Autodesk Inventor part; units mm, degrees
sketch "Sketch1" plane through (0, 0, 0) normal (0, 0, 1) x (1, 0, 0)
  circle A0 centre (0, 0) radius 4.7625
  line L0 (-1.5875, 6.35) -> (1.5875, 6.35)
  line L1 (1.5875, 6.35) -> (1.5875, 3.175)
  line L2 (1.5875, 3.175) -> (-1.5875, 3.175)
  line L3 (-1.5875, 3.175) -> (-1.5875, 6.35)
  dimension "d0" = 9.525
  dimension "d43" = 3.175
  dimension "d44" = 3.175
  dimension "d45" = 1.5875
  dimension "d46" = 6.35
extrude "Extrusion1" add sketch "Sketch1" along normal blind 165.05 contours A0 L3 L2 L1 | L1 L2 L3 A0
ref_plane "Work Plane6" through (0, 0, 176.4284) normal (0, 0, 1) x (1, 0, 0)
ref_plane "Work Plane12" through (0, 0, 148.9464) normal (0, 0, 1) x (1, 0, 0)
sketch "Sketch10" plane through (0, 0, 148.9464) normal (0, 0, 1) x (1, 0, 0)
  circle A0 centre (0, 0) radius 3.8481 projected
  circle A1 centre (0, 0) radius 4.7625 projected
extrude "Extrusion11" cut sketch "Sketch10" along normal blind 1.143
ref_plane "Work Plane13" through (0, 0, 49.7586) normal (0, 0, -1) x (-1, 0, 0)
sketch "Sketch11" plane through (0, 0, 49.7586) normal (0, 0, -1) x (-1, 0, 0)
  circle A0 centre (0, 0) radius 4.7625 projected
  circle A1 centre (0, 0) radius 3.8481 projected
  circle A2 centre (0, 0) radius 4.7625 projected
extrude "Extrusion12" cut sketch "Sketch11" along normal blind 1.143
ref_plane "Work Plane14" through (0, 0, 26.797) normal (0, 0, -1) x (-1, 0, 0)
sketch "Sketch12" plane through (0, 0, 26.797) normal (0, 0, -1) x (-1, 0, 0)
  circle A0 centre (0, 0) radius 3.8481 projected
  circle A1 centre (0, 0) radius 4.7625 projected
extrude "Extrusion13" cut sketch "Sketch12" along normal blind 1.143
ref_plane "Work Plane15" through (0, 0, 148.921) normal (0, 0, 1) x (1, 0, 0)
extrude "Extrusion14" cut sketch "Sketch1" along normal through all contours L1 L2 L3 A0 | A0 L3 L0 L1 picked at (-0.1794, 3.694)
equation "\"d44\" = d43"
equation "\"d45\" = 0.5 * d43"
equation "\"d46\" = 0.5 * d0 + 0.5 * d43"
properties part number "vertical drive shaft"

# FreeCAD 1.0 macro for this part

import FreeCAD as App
import Part
import Sketcher
from FreeCAD import Vector
Q = App.Units.Quantity

doc = App.newDocument("Part")
body = doc.addObject("PartDesign::Body", "Body")

# Sketch on XY plane
sketch1 = doc.addObject("Sketcher::SketchObject", "Sketch")
body.addObject(sketch1)
sketch1.AttachmentSupport = (doc.XY_Plane, [""])
sketch1.MapMode = "FlatFace"
sketch1.addGeometry(Part.Circle(Vector(0, 0, 0), Vector(0, 0, 1), 4.8), False)
sketch1.addConstraint(Sketcher.Constraint("Coincident", 0, 3, -1, 1))
sketch1.addConstraint(Sketcher.Constraint("Diameter", 0, Q("0.375 in")))
pad1 = doc.addObject("PartDesign::Pad", "Pad")
body.addObject(pad1)
pad1.Profile = sketch1
pad1.Length = 165.05

# Sketch on XY plane
sketch2 = doc.addObject("Sketcher::SketchObject", "Sketch001")
body.addObject(sketch2)
sketch2.AttachmentSupport = (doc.XY_Plane, [""])
sketch2.MapMode = "FlatFace"
sketch2.AttachmentOffset = App.Placement(Vector(0, 0, 148.9464), App.Rotation())
sketch2.addGeometry(Part.Circle(Vector(0, 0, 0), Vector(0, 0, 1), 4.8), False)
sketch2.addGeometry(Part.Circle(Vector(0, 0, 0), Vector(0, 0, 1), 3.8), False)
sketch2.addConstraint(Sketcher.Constraint("Coincident", 0, 3, -1, 1))
sketch2.addConstraint(Sketcher.Constraint("Coincident", 1, 3, -1, 1))
sketch2.addConstraint(Sketcher.Constraint("Diameter", 0, Q("0.375 in")))
sketch2.addConstraint(Sketcher.Constraint("Diameter", 1, Q("0.303 in")))
pocket1 = doc.addObject("PartDesign::Pocket", "Pocket")
body.addObject(pocket1)
pocket1.Profile = sketch2
pocket1.Length = Q("0.045 in")
pocket1.Reversed = True

# Sketch on XY plane
sketch3 = doc.addObject("Sketcher::SketchObject", "Sketch002")
body.addObject(sketch3)
sketch3.AttachmentSupport = (doc.XY_Plane, [""])
sketch3.MapMode = "FlatFace"
sketch3.AttachmentOffset = App.Placement(Vector(0, 0, 1.959 * 25.4), App.Rotation())
sketch3.addGeometry(Part.Circle(Vector(0, 0, 0), Vector(0, 0, 1), 4.8), False)
sketch3.addGeometry(Part.Circle(Vector(0, 0, 0), Vector(0, 0, 1), 3.8), False)
sketch3.addConstraint(Sketcher.Constraint("Coincident", 0, 3, -1, 1))
sketch3.addConstraint(Sketcher.Constraint("Coincident", 1, 3, -1, 1))
sketch3.addConstraint(Sketcher.Constraint("Diameter", 0, Q("0.375 in")))
sketch3.addConstraint(Sketcher.Constraint("Diameter", 1, Q("0.303 in")))
pocket2 = doc.addObject("PartDesign::Pocket", "Pocket001")
body.addObject(pocket2)
pocket2.Profile = sketch3
pocket2.Length = Q("0.045 in")

# Sketch on XY plane
sketch4 = doc.addObject("Sketcher::SketchObject", "Sketch003")
body.addObject(sketch4)
sketch4.AttachmentSupport = (doc.XY_Plane, [""])
sketch4.MapMode = "FlatFace"
sketch4.AttachmentOffset = App.Placement(Vector(0, 0, 1.055 * 25.4), App.Rotation())
sketch4.addGeometry(Part.Circle(Vector(0, 0, 0), Vector(0, 0, 1), 4.8), False)
sketch4.addGeometry(Part.Circle(Vector(0, 0, 0), Vector(0, 0, 1), 3.8), False)
sketch4.addConstraint(Sketcher.Constraint("Coincident", 0, 3, -1, 1))
sketch4.addConstraint(Sketcher.Constraint("Coincident", 1, 3, -1, 1))
sketch4.addConstraint(Sketcher.Constraint("Diameter", 0, Q("0.375 in")))
sketch4.addConstraint(Sketcher.Constraint("Diameter", 1, Q("0.303 in")))
pocket3 = doc.addObject("PartDesign::Pocket", "Pocket002")
body.addObject(pocket3)
pocket3.Profile = sketch4
pocket3.Length = Q("0.045 in")

# Sketch on XY plane
sketch5 = doc.addObject("Sketcher::SketchObject", "Sketch004")
body.addObject(sketch5)
sketch5.AttachmentSupport = (doc.XY_Plane, [""])
sketch5.MapMode = "FlatFace"
sketch5.addGeometry(Part.LineSegment(Vector(1.6, 3.2, 0), Vector(1.6, 6.3, 0)), False)
sketch5.addGeometry(Part.LineSegment(Vector(1.6, 6.3, 0), Vector(-1.6, 6.3, 0)), False)
sketch5.addGeometry(Part.LineSegment(Vector(-1.6, 6.3, 0), Vector(-1.6, 3.2, 0)), False)
sketch5.addGeometry(Part.LineSegment(Vector(-1.6, 3.2, 0), Vector(1.6, 3.2, 0)), False)
sketch5.addConstraint(Sketcher.Constraint("Coincident", 0, 2, 1, 1))
sketch5.addConstraint(Sketcher.Constraint("Coincident", 1, 2, 2, 1))
sketch5.addConstraint(Sketcher.Constraint("Coincident", 2, 2, 3, 1))
sketch5.addConstraint(Sketcher.Constraint("Coincident", 3, 2, 0, 1))
sketch5.addConstraint(Sketcher.Constraint("Vertical", 0))
sketch5.addConstraint(Sketcher.Constraint("Horizontal", 1))
sketch5.addConstraint(Sketcher.Constraint("Vertical", 2))
sketch5.addConstraint(Sketcher.Constraint("Horizontal", 3))
sketch5.addConstraint(Sketcher.Constraint("Equal", 3, 0))
sketch5.addConstraint(Sketcher.Constraint("DistanceX", 1, 2, 1, 1, Q("0.125 in")))
sketch5.addConstraint(Sketcher.Constraint("DistanceY", -1, 1, 0, 2, Q("0.25 in")))
sketch5.addConstraint(Sketcher.Constraint("DistanceX", -1, 1, 0, 2, Q("0.0625 in")))
pocket4 = doc.addObject("PartDesign::Pocket", "Pocket003")
body.addObject(pocket4)
pocket4.Profile = sketch5
pocket4.Type = "ThroughAll"
pocket4.Reversed = True

doc.recompute()
